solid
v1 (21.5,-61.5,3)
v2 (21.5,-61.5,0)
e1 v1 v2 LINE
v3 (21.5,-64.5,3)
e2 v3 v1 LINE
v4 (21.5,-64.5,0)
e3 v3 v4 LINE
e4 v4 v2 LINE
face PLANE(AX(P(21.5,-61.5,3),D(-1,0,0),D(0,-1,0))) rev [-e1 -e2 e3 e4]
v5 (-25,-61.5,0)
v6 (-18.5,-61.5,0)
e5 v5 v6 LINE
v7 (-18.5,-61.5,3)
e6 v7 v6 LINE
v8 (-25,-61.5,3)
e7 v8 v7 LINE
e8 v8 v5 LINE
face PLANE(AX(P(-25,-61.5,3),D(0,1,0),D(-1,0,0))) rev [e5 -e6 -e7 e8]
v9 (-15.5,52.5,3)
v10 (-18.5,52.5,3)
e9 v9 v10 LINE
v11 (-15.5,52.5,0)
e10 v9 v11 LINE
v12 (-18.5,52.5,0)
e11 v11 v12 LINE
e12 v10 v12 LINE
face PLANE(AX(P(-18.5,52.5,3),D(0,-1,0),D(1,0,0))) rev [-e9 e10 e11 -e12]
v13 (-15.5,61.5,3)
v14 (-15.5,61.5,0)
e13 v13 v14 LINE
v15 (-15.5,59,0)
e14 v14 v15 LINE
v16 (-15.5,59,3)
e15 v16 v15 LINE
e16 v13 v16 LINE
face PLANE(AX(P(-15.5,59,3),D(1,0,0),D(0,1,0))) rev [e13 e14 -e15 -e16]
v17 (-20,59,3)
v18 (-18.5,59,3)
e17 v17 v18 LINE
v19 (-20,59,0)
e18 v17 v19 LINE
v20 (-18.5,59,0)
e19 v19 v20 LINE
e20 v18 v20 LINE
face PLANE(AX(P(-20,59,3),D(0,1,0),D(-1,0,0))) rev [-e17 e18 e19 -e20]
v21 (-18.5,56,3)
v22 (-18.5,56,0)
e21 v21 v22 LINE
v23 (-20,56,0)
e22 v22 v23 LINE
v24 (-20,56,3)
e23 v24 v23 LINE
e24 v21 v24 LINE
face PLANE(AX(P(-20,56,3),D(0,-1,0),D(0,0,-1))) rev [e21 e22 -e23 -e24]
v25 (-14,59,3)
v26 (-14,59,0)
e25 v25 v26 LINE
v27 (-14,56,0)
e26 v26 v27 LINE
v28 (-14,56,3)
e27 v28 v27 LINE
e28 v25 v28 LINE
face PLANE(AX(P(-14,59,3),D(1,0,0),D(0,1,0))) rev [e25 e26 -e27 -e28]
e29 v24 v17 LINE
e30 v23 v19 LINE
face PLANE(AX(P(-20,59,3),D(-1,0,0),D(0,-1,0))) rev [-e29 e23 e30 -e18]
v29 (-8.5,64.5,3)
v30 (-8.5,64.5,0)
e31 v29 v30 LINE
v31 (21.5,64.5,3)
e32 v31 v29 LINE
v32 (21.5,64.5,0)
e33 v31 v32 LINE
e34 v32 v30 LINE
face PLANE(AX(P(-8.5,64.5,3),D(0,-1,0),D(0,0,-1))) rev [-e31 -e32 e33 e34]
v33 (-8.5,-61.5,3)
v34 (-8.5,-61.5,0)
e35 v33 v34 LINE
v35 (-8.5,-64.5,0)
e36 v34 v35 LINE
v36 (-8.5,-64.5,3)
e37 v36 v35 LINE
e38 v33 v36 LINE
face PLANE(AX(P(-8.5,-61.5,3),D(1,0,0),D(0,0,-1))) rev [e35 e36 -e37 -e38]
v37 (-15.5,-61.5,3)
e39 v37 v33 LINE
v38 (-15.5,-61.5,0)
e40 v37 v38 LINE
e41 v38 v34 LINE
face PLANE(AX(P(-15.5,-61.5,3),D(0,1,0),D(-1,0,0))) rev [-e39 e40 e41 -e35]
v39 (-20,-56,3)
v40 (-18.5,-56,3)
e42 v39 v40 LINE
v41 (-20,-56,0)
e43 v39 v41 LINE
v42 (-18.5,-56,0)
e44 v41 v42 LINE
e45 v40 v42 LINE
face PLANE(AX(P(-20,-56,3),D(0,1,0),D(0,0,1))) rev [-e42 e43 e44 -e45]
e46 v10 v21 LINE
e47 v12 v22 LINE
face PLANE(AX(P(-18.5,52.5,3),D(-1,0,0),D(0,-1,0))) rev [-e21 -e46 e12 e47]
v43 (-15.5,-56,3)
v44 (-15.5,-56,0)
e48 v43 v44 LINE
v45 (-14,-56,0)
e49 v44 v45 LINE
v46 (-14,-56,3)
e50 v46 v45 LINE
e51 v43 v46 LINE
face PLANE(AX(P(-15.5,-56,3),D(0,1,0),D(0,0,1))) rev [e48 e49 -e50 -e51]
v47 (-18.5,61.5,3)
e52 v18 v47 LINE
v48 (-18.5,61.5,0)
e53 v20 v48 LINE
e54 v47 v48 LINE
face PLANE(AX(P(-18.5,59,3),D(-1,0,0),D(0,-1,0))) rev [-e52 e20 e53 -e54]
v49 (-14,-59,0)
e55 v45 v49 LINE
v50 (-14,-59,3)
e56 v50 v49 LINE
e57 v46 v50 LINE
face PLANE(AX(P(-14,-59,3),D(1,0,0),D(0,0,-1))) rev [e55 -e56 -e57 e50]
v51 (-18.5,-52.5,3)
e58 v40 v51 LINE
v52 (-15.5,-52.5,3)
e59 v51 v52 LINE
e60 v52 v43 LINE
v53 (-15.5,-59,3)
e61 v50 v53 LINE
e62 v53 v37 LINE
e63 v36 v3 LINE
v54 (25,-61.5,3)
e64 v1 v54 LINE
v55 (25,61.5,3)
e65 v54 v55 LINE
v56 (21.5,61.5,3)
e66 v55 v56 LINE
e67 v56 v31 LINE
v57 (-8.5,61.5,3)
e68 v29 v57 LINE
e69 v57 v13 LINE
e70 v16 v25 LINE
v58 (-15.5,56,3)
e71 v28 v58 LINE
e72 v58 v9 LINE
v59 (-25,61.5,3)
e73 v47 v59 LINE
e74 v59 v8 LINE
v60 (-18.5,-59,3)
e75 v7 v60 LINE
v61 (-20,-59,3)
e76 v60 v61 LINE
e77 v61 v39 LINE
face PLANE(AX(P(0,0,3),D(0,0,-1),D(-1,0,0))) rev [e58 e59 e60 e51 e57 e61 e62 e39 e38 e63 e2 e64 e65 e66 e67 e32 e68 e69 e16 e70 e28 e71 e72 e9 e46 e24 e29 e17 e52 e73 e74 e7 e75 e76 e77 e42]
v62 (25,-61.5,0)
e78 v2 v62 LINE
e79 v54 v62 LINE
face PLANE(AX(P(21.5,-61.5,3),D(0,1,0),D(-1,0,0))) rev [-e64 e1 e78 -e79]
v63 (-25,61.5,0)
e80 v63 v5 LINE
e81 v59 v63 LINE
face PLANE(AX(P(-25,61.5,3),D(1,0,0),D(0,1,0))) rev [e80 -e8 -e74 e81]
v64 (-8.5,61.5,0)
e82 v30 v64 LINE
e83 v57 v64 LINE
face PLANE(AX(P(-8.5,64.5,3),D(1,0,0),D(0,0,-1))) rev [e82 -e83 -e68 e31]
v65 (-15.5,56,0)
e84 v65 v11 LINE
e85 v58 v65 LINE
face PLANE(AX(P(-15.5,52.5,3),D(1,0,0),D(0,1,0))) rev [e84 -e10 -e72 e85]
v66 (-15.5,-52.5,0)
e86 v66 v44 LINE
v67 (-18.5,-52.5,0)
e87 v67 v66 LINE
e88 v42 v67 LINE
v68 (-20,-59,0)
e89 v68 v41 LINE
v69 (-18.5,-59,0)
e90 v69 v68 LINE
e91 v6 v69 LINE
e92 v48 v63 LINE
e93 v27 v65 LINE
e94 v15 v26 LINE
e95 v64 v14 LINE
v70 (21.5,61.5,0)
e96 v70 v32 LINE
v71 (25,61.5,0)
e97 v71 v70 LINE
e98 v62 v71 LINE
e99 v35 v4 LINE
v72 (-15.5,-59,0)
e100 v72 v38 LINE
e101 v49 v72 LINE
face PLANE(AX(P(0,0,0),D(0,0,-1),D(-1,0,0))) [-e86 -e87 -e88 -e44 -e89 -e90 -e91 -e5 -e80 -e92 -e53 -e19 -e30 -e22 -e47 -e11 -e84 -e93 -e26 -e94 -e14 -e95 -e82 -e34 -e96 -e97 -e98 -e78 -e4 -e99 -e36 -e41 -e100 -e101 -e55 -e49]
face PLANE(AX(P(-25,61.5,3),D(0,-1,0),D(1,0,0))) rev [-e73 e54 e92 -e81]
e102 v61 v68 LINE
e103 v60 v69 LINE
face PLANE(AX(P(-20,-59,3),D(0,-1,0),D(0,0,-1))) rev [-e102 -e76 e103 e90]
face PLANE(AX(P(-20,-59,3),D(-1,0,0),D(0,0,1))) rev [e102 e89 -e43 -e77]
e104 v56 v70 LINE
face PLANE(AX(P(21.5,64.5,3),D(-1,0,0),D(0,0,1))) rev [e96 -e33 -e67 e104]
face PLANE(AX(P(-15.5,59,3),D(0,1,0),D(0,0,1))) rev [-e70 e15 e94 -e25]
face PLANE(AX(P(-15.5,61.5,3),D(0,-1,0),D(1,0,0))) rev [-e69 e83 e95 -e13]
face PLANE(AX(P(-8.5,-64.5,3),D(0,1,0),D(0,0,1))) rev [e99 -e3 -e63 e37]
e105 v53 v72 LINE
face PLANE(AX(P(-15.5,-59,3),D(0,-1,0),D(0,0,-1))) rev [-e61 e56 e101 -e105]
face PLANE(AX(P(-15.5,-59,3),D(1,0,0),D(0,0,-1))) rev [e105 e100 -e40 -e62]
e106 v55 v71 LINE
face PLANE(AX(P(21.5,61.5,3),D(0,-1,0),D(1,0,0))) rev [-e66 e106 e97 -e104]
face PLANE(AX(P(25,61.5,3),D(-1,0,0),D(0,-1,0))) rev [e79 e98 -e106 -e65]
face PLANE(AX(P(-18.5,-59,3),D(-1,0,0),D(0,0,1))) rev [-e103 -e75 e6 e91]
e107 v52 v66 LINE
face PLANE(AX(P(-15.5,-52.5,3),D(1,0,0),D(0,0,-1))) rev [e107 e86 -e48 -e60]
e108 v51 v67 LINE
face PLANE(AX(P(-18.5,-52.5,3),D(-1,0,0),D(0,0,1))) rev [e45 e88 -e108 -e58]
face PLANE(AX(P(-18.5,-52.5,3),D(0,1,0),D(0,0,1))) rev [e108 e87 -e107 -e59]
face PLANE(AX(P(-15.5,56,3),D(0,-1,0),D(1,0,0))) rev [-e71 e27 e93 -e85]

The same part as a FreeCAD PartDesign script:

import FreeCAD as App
import Part
import Sketcher

doc = App.newDocument("Part")
body = doc.addObject("PartDesign::Body", "Body")

# Sketch on XY plane
sketch1 = body.newObject("Sketcher::SketchObject", "Sketch")
sketch1.AttachmentSupport = (doc.getObject("XY_Plane"), [""])
sketch1.MapMode = "FlatFace"
sketch1.addGeometry([
    Part.LineSegment(App.Vector(-8.5, 61.5, 0), App.Vector(-15.5, 61.5, 0)),  # 0
    Part.LineSegment(App.Vector(-15.5, 61.5, 0), App.Vector(-15.5, 59, 0)),  # 1
    Part.LineSegment(App.Vector(-15.5, 59, 0), App.Vector(-14, 59, 0)),  # 2
    Part.LineSegment(App.Vector(-14, 59, 0), App.Vector(-14, 56, 0)),  # 3
    Part.LineSegment(App.Vector(-14, 56, 0), App.Vector(-15.5, 56, 0)),  # 4
    Part.LineSegment(App.Vector(-15.5, 56, 0), App.Vector(-15.5, 52.5, 0)),  # 5
    Part.LineSegment(App.Vector(-15.5, 52.5, 0), App.Vector(-18.5, 52.5, 0)),  # 6
    Part.LineSegment(App.Vector(-18.5, 52.5, 0), App.Vector(-18.5, 56, 0)),  # 7
    Part.LineSegment(App.Vector(-18.5, 56, 0), App.Vector(-20, 56, 0)),  # 8
    Part.LineSegment(App.Vector(-20, 56, 0), App.Vector(-20, 59, 0)),  # 9
    Part.LineSegment(App.Vector(-20, 59, 0), App.Vector(-18.5, 59, 0)),  # 10
    Part.LineSegment(App.Vector(-18.5, 59, 0), App.Vector(-18.5, 61.5, 0)),  # 11
    Part.LineSegment(App.Vector(-18.5, 61.5, 0), App.Vector(-25, 61.5, 0)),  # 12
    Part.LineSegment(App.Vector(-25, 61.5, 0), App.Vector(-25, -61.5, 0)),  # 13
    Part.LineSegment(App.Vector(-25, -61.5, 0), App.Vector(-18.5, -61.5, 0)),  # 14
    Part.LineSegment(App.Vector(-18.5, -61.5, 0), App.Vector(-18.5, -59, 0)),  # 15
    Part.LineSegment(App.Vector(-18.5, -59, 0), App.Vector(-20, -59, 0)),  # 16
    Part.LineSegment(App.Vector(-20, -59, 0), App.Vector(-20, -56, 0)),  # 17
    Part.LineSegment(App.Vector(-20, -56, 0), App.Vector(-18.5, -56, 0)),  # 18
    Part.LineSegment(App.Vector(-18.5, -56, 0), App.Vector(-18.5, -52.5, 0)),  # 19
    Part.LineSegment(App.Vector(-18.5, -52.5, 0), App.Vector(-15.5, -52.5, 0)),  # 20
    Part.LineSegment(App.Vector(-15.5, -52.5, 0), App.Vector(-15.5, -56, 0)),  # 21
    Part.LineSegment(App.Vector(-15.5, -56, 0), App.Vector(-14, -56, 0)),  # 22
    Part.LineSegment(App.Vector(-14, -56, 0), App.Vector(-14, -59, 0)),  # 23
    Part.LineSegment(App.Vector(-14, -59, 0), App.Vector(-15.5, -59, 0)),  # 24
    Part.LineSegment(App.Vector(-15.5, -59, 0), App.Vector(-15.5, -61.5, 0)),  # 25
    Part.LineSegment(App.Vector(-15.5, -61.5, 0), App.Vector(-8.5, -61.5, 0)),  # 26
    Part.LineSegment(App.Vector(-8.5, -61.5, 0), App.Vector(-8.5, -64.5, 0)),  # 27
    Part.LineSegment(App.Vector(-8.5, -64.5, 0), App.Vector(21.5, -64.5, 0)),  # 28
    Part.LineSegment(App.Vector(21.5, -64.5, 0), App.Vector(21.5, -61.5, 0)),  # 29
    Part.LineSegment(App.Vector(21.5, -61.5, 0), App.Vector(25, -61.5, 0)),  # 30
    Part.LineSegment(App.Vector(25, -61.5, 0), App.Vector(25, 61.5, 0)),  # 31
    Part.LineSegment(App.Vector(25, 61.5, 0), App.Vector(21.5, 61.5, 0)),  # 32
    Part.LineSegment(App.Vector(21.5, 61.5, 0), App.Vector(21.5, 64.5, 0)),  # 33
    Part.LineSegment(App.Vector(21.5, 64.5, 0), App.Vector(-8.5, 64.5, 0)),  # 34
    Part.LineSegment(App.Vector(-8.5, 64.5, 0), App.Vector(-8.5, 61.5, 0)),  # 35
], False)
sketch1.addConstraint([
    Sketcher.Constraint("Coincident", 0, 2, 1, 1),
    Sketcher.Constraint("Coincident", 1, 2, 2, 1),
    Sketcher.Constraint("Coincident", 2, 2, 3, 1),
    Sketcher.Constraint("Coincident", 3, 2, 4, 1),
    Sketcher.Constraint("Coincident", 4, 2, 5, 1),
    Sketcher.Constraint("Coincident", 5, 2, 6, 1),
    Sketcher.Constraint("Coincident", 6, 2, 7, 1),
    Sketcher.Constraint("Coincident", 7, 2, 8, 1),
    Sketcher.Constraint("Coincident", 8, 2, 9, 1),
    Sketcher.Constraint("Coincident", 9, 2, 10, 1),
    Sketcher.Constraint("Coincident", 10, 2, 11, 1),
    Sketcher.Constraint("Coincident", 11, 2, 12, 1),
    Sketcher.Constraint("Coincident", 12, 2, 13, 1),
    Sketcher.Constraint("Coincident", 13, 2, 14, 1),
    Sketcher.Constraint("Coincident", 14, 2, 15, 1),
    Sketcher.Constraint("Coincident", 15, 2, 16, 1),
    Sketcher.Constraint("Coincident", 16, 2, 17, 1),
    Sketcher.Constraint("Coincident", 17, 2, 18, 1),
    Sketcher.Constraint("Coincident", 18, 2, 19, 1),
    Sketcher.Constraint("Coincident", 19, 2, 20, 1),
    Sketcher.Constraint("Coincident", 20, 2, 21, 1),
    Sketcher.Constraint("Coincident", 21, 2, 22, 1),
    Sketcher.Constraint("Coincident", 22, 2, 23, 1),
    Sketcher.Constraint("Coincident", 23, 2, 24, 1),
    Sketcher.Constraint("Coincident", 24, 2, 25, 1),
    Sketcher.Constraint("Coincident", 25, 2, 26, 1),
    Sketcher.Constraint("Coincident", 26, 2, 27, 1),
    Sketcher.Constraint("Coincident", 27, 2, 28, 1),
    Sketcher.Constraint("Coincident", 28, 2, 29, 1),
    Sketcher.Constraint("Coincident", 29, 2, 30, 1),
    Sketcher.Constraint("Coincident", 30, 2, 31, 1),
    Sketcher.Constraint("Coincident", 31, 2, 32, 1),
    Sketcher.Constraint("Coincident", 32, 2, 33, 1),
    Sketcher.Constraint("Coincident", 33, 2, 34, 1),
    Sketcher.Constraint("Coincident", 34, 2, 35, 1),
    Sketcher.Constraint("Coincident", 35, 2, 0, 1),
    Sketcher.Constraint("Horizontal", 0),
    Sketcher.Constraint("Vertical", 1),
    Sketcher.Constraint("Horizontal", 2),
    Sketcher.Constraint("Vertical", 3),
    Sketcher.Constraint("Horizontal", 4),
    Sketcher.Constraint("Vertical", 5),
    Sketcher.Constraint("Horizontal", 6),
    Sketcher.Constraint("Vertical", 7),
    Sketcher.Constraint("Horizontal", 8),
    Sketcher.Constraint("Vertical", 9),
    Sketcher.Constraint("Horizontal", 10),
    Sketcher.Constraint("Vertical", 11),
    Sketcher.Constraint("Horizontal", 12),
    Sketcher.Constraint("Vertical", 13),
    Sketcher.Constraint("Horizontal", 14),
    Sketcher.Constraint("Vertical", 15),
    Sketcher.Constraint("Horizontal", 16),
    Sketcher.Constraint("Vertical", 17),
    Sketcher.Constraint("Horizontal", 18),
    Sketcher.Constraint("Vertical", 19),
    Sketcher.Constraint("Horizontal", 20),
    Sketcher.Constraint("Vertical", 21),
    Sketcher.Constraint("Horizontal", 22),
    Sketcher.Constraint("Vertical", 23),
    Sketcher.Constraint("Horizontal", 24),
    Sketcher.Constraint("Vertical", 25),
    Sketcher.Constraint("Horizontal", 26),
    Sketcher.Constraint("Vertical", 27),
    Sketcher.Constraint("Horizontal", 28),
    Sketcher.Constraint("Vertical", 29),
    Sketcher.Constraint("Horizontal", 30),
    Sketcher.Constraint("Vertical", 31),
    Sketcher.Constraint("Horizontal", 32),
    Sketcher.Constraint("Vertical", 33),
    Sketcher.Constraint("Horizontal", 34),
    Sketcher.Constraint("Vertical", 35),
    Sketcher.Constraint("Symmetric", 12, 2, 30, 2, -1, 1),
    Sketcher.Constraint("Symmetric", 11, 2, 14, 2, -1),
    Sketcher.Constraint("Symmetric", 9, 2, 16, 2, -1),
    Sketcher.Constraint("Symmetric", 7, 2, 18, 2, -1),
    Sketcher.Constraint("Symmetric", 5, 2, 20, 2, -1),
    Sketcher.Constraint("Symmetric", 3, 2, 22, 2, -1),
    Sketcher.Constraint("Symmetric", 1, 2, 24, 2, -1),
    Sketcher.Constraint("Symmetric", 29, 2, 32, 2, -1),
    Sketcher.Constraint("Symmetric", 27, 2, 34, 2, -1),
    Sketcher.Constraint("Horizontal", 4, 2, 7, 2),
    Sketcher.Constraint("Horizontal", 2, 2, 9, 2),
    Sketcher.Constraint("Horizontal", 0, 2, 11, 2),
    Sketcher.Constraint("Horizontal", 14, 2, 25, 2),
    Sketcher.Constraint("Vertical", 1, 2, 4, 2),
    Sketcher.Constraint("Vertical", 7, 2, 10, 2),
    Sketcher.Constraint("Equal", 4, 8),
    Sketcher.Constraint("Equal", 20, 3),
    Sketcher.Constraint("Equal", 32, 5),
    Sketcher.Constraint("Equal", 23, 27),
    Sketcher.Constraint("DistanceX", 0, 2, 0, 1, 7.0),
    Sketcher.Constraint("DistanceX", 6, 2, 6, 1, 3.0),
    Sketcher.Constraint("DistanceX", 28, 1, 28, 2, 30.0),
    Sketcher.Constraint("DistanceY", 13, 2, 13, 1, 123.0),
    Sketcher.Constraint("DistanceX", 2, 1, 2, 2, 1.5),
    Sketcher.Constraint("DistanceX", 12, 2, 12, 1, 6.5),
    Sketcher.Constraint("DistanceX", 30, 1, 30, 2, 3.5),
    Sketcher.Constraint("DistanceY", 1, 2, 1, 1, 2.5),
])
pad1 = body.newObject("PartDesign::Pad", "Pad")
pad1.Profile = sketch1
pad1.Length = 3

doc.recompute()
